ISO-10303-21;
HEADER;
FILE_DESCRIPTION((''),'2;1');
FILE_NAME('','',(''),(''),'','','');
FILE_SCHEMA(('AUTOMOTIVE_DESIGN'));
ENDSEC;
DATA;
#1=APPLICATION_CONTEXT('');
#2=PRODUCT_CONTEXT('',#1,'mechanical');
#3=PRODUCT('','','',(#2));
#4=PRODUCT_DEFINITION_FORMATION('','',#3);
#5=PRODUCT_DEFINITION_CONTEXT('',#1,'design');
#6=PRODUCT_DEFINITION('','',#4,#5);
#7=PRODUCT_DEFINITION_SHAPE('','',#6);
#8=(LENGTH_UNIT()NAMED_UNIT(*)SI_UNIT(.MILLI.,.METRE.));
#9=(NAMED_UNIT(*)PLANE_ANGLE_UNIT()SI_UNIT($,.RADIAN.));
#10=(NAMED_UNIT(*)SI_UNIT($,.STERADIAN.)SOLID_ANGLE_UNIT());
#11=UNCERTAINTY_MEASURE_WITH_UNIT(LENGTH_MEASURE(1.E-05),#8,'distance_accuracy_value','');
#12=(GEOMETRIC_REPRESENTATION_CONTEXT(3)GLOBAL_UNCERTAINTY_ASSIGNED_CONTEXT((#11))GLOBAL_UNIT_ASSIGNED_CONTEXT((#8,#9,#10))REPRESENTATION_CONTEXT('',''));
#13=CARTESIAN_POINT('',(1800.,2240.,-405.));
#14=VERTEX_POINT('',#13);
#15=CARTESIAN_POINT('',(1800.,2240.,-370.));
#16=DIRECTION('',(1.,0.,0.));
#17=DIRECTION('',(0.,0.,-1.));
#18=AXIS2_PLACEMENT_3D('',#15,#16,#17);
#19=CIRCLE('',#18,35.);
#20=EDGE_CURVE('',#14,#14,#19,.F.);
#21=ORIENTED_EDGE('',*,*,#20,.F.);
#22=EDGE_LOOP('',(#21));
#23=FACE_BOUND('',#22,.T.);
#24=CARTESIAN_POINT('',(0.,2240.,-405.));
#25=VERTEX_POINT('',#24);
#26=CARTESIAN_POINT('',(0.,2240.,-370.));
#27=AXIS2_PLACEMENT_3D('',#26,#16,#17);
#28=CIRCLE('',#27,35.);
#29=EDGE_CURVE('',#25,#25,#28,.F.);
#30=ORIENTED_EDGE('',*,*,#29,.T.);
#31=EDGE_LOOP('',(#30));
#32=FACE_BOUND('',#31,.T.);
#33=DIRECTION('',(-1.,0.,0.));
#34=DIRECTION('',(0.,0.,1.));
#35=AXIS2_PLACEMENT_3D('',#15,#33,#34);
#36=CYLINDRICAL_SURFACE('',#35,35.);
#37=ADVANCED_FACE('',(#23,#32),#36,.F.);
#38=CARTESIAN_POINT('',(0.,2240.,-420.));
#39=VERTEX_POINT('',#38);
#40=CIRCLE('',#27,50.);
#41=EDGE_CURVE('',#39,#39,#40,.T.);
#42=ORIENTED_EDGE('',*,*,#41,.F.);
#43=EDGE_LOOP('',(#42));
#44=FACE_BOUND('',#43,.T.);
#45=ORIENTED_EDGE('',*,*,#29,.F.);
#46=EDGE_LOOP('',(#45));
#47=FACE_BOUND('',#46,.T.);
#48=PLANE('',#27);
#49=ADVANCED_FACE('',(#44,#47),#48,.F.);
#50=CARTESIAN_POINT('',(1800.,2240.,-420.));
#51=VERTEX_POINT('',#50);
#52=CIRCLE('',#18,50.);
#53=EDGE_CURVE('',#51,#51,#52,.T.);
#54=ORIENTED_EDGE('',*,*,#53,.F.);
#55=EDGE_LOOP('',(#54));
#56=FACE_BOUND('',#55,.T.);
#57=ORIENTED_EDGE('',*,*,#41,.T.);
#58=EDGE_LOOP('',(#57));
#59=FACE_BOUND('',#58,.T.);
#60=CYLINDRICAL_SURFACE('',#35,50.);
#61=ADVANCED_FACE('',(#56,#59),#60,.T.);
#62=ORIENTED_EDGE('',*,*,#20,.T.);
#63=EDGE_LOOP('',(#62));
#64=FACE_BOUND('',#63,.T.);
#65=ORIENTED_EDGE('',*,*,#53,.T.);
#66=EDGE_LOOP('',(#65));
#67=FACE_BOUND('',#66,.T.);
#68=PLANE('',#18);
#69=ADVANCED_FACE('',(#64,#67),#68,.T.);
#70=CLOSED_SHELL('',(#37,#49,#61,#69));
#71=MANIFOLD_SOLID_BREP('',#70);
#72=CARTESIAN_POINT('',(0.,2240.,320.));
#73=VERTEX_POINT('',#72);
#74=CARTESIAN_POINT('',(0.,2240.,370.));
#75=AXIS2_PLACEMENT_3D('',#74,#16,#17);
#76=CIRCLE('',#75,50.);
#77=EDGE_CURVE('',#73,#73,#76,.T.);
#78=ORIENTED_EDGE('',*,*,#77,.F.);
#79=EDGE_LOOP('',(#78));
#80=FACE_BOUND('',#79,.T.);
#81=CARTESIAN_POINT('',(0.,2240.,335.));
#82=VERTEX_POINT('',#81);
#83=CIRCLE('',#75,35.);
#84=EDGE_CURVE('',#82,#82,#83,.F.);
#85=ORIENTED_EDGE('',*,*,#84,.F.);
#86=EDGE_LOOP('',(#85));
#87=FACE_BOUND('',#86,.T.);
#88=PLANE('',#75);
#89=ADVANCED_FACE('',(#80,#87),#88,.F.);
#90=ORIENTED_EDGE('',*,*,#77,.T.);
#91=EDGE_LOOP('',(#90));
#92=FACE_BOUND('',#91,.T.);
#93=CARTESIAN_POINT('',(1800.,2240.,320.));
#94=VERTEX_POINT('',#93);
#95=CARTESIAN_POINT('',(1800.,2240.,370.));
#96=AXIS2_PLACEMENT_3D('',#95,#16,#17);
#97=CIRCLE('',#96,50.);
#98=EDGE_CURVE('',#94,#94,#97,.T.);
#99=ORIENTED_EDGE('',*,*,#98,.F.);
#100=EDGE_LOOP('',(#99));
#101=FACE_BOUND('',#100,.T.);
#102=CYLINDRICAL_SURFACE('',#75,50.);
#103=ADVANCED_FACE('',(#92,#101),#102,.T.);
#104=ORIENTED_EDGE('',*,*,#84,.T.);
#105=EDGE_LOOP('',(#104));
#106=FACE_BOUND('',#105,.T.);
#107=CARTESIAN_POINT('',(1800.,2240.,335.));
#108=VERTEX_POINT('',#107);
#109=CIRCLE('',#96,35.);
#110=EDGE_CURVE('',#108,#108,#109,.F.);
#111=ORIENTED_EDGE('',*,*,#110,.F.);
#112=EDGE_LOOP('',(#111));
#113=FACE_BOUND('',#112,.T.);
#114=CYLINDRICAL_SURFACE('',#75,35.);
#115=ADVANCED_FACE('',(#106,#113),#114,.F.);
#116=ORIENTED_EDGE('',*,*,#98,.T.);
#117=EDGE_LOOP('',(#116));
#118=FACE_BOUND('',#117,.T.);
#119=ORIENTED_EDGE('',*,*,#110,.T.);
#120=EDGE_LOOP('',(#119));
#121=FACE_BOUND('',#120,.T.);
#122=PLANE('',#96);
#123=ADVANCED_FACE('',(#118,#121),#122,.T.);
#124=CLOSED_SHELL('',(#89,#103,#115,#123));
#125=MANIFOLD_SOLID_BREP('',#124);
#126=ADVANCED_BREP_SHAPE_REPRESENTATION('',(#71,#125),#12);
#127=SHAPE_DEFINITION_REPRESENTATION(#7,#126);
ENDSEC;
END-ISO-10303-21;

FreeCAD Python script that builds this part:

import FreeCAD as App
import Part
import Sketcher
from FreeCAD import Vector
Q = App.Units.Quantity

doc = App.newDocument("Part")
params = doc.addObject("Spreadsheet::Sheet", "Params")
for row, (alias, value) in enumerate([
    ("sketch1_diameter", "100 mm"),
    ("sketch1_diameter2", "70 mm"),
    ("sketch2_width", "1800 mm"),
    ("sketch3_diameter", "100 mm"),
    ("sketch3_diameter2", "70 mm"),
    ("sketch4_width", "1800 mm"),
], start=1):
    params.set(f"A{row}", alias)
    params.set(f"B{row}", "=" + value)
    params.setAlias(f"B{row}", alias)

body = doc.addObject("PartDesign::Body", "Body")

# Sketch on YZ plane
sketch1 = body.newObject("Sketcher::SketchObject", "Sketch")
sketch1.AttachmentSupport = (doc.getObject("YZ_Plane"), [""])
sketch1.MapMode = "FlatFace"
sketch1.addGeometry([
    Part.Circle(Vector(2240, -370, 0), Vector(0, 0, 1), 50),
    Part.Circle(Vector(2240, -370, 0), Vector(0, 0, 1), 35),
], False)
sketch1.addConstraint([
    Sketcher.Constraint("Coincident", 1, 3, 0, 3),
    Sketcher.Constraint("Diameter", 0, Q("100 mm")),
    Sketcher.Constraint("Diameter", 1, Q("70 mm")),
    Sketcher.Constraint("DistanceX", -1, 1, 0, 3, Q("2240 mm")),
    Sketcher.Constraint("DistanceY", 0, 3, -1, 1, Q("370 mm")),
])
sketch1.setExpression("Constraints[1]", "Params.sketch1_diameter")
sketch1.setExpression("Constraints[2]", "Params.sketch1_diameter2")

# Sketch on XY plane
sketch2 = body.newObject("Sketcher::SketchObject", "Sketch001")
sketch2.AttachmentSupport = (doc.getObject("XY_Plane"), [""])
sketch2.MapMode = "FlatFace"
sketch2.AttachmentOffset = App.Placement(Vector(0, 0, -370), App.Rotation())
sketch2.addGeometry(Part.LineSegment(Vector(1800, 2240, 0), Vector(0, 2240, 0)), False)
sketch2.addConstraint([
    Sketcher.Constraint("Horizontal", 0),
    Sketcher.Constraint("PointOnObject", 0, 2, -2),
    Sketcher.Constraint("DistanceX", 0, 2, 0, 1, Q("1800 mm")),
    Sketcher.Constraint("DistanceY", -1, 1, 0, 1, Q("2240 mm")),
])
sketch2.setExpression("Constraints[2]", "Params.sketch2_width")
doc.recompute()

additivepipe = body.newObject("PartDesign::AdditivePipe", "AdditivePipe")
additivepipe.Profile = sketch1
additivepipe.Spine = (sketch2, ["Edge1"])
body2 = doc.addObject("PartDesign::Body", "Body001")

# Sketch on YZ plane
sketch3 = body2.newObject("Sketcher::SketchObject", "Sketch002")
sketch3.AttachmentSupport = (doc.getObject("YZ_Plane001"), [""])
sketch3.MapMode = "FlatFace"
sketch3.addGeometry([
    Part.Circle(Vector(2240, 370, 0), Vector(0, 0, 1), 50),
    Part.Circle(Vector(2240, 370, 0), Vector(0, 0, 1), 35),
], False)
sketch3.addConstraint([
    Sketcher.Constraint("Coincident", 1, 3, 0, 3),
    Sketcher.Constraint("Diameter", 0, Q("100 mm")),
    Sketcher.Constraint("Diameter", 1, Q("70 mm")),
    Sketcher.Constraint("DistanceX", -1, 1, 0, 3, Q("2240 mm")),
    Sketcher.Constraint("DistanceY", -1, 1, 0, 3, Q("370 mm")),
])
sketch3.setExpression("Constraints[1]", "Params.sketch3_diameter")
sketch3.setExpression("Constraints[2]", "Params.sketch3_diameter2")

# Sketch on XY plane
sketch4 = body2.newObject("Sketcher::SketchObject", "Sketch003")
sketch4.AttachmentSupport = (doc.getObject("XY_Plane001"), [""])
sketch4.MapMode = "FlatFace"
sketch4.AttachmentOffset = App.Placement(Vector(0, 0, 370), App.Rotation())
sketch4.addGeometry(Part.LineSegment(Vector(0, 2240, 0), Vector(1800, 2240, 0)), False)
sketch4.addConstraint([
    Sketcher.Constraint("Horizontal", 0),
    Sketcher.Constraint("PointOnObject", 0, 1, -2),
    Sketcher.Constraint("DistanceX", 0, 1, 0, 2, Q("1800 mm")),
    Sketcher.Constraint("DistanceY", -1, 1, 0, 1, Q("2240 mm")),
])
sketch4.setExpression("Constraints[2]", "Params.sketch4_width")
doc.recompute()

additivepipe2 = body2.newObject("PartDesign::AdditivePipe", "AdditivePipe001")
additivepipe2.Profile = sketch3
additivepipe2.Spine = (sketch4, ["Edge1"])

doc.recompute()
